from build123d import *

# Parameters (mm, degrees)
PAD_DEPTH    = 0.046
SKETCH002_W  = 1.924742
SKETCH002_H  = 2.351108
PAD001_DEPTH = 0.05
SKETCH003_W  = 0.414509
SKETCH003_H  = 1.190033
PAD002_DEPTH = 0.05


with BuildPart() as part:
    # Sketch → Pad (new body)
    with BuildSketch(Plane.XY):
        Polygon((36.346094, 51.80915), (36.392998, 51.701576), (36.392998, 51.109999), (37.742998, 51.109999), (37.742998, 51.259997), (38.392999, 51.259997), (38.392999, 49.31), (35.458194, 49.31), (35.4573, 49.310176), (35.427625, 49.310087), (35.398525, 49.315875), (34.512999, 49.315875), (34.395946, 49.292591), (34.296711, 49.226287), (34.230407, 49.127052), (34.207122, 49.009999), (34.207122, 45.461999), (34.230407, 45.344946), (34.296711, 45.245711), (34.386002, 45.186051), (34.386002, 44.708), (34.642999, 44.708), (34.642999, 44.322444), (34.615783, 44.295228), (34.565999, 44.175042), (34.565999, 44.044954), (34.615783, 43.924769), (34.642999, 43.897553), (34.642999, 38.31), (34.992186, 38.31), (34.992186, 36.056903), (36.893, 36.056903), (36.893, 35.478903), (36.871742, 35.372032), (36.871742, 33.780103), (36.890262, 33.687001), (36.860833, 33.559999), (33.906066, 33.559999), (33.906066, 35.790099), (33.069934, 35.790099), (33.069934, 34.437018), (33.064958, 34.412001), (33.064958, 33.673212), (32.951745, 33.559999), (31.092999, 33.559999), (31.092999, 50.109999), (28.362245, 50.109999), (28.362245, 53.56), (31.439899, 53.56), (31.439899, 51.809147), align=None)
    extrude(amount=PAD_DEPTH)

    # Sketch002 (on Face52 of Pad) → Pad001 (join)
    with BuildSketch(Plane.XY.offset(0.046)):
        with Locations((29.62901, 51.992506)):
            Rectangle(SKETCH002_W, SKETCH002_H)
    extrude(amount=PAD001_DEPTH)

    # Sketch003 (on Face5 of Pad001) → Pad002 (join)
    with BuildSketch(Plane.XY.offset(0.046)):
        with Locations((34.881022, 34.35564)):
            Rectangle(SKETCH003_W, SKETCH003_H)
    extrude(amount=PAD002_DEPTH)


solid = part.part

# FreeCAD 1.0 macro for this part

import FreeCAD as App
import Part
import Sketcher
Q = App.Units.Quantity

doc = App.newDocument("Part")
params = doc.addObject("Spreadsheet::Sheet", "Params")
for row, (alias, value) in enumerate([
    ("sketch1_width", "0.650001 mm"),
    ("sketch1_height", "3.450001 mm"),
    ("pad1_length", "0.046 mm"),
    ("pad2_length", "0.05 mm"),
    ("pad3_length", "0.05 mm"),
], start=1):
    params.set(f"A{row}", alias)
    params.set(f"B{row}", "=" + value)
    params.setAlias(f"B{row}", alias)

body = doc.addObject("PartDesign::Body", "Body")

# Sketch on XY plane
sketch1 = body.newObject("Sketcher::SketchObject", "Sketch")
sketch1.AttachmentSupport = (doc.getObject("XY_Plane"), [""])
sketch1.MapMode = "FlatFace"
sketch1.addGeometry(Part.LineSegment(App.Vector(36.392998, 51.701576, 0), App.Vector(36.346094, 51.80915, 0)), False)
sketch1.addGeometry(Part.LineSegment(App.Vector(36.346094, 51.80915, 0), App.Vector(31.439899, 51.809147, 0)), False)
sketch1.addGeometry(Part.LineSegment(App.Vector(31.439899, 51.809147, 0), App.Vector(31.439899, 53.56, 0)), False)
sketch1.addGeometry(Part.LineSegment(App.Vector(31.439899, 53.56, 0), App.Vector(28.362245, 53.56, 0)), False)
sketch1.addGeometry(Part.LineSegment(App.Vector(28.362245, 53.56, 0), App.Vector(28.362245, 50.109999, 0)), False)
sketch1.addGeometry(Part.LineSegment(App.Vector(28.362245, 50.109999, 0), App.Vector(31.092999, 50.109999, 0)), False)
sketch1.addGeometry(Part.LineSegment(App.Vector(31.092999, 50.109999, 0), App.Vector(31.092999, 33.559999, 0)), False)
sketch1.addGeometry(Part.LineSegment(App.Vector(31.092999, 33.559999, 0), App.Vector(32.951745, 33.559999, 0)), False)
sketch1.addGeometry(Part.LineSegment(App.Vector(32.951745, 33.559999, 0), App.Vector(33.064958, 33.673212, 0)), False)
sketch1.addGeometry(Part.LineSegment(App.Vector(33.064958, 33.673212, 0), App.Vector(33.064958, 34.412001, 0)), False)
sketch1.addGeometry(Part.LineSegment(App.Vector(33.064958, 34.412001, 0), App.Vector(33.069934, 34.437018, 0)), False)
sketch1.addGeometry(Part.LineSegment(App.Vector(33.069934, 34.437018, 0), App.Vector(33.069934, 35.790099, 0)), False)
sketch1.addGeometry(Part.LineSegment(App.Vector(33.069934, 35.790099, 0), App.Vector(33.906066, 35.790099, 0)), False)
sketch1.addGeometry(Part.LineSegment(App.Vector(33.906066, 35.790099, 0), App.Vector(33.906066, 33.559999, 0)), False)
sketch1.addGeometry(Part.LineSegment(App.Vector(33.906066, 33.559999, 0), App.Vector(36.860833, 33.559999, 0)), False)
sketch1.addGeometry(Part.LineSegment(App.Vector(36.860833, 33.559999, 0), App.Vector(36.890262, 33.687001, 0)), False)
sketch1.addGeometry(Part.LineSegment(App.Vector(36.890262, 33.687001, 0), App.Vector(36.871742, 33.780103, 0)), False)
sketch1.addGeometry(Part.LineSegment(App.Vector(36.871742, 33.780103, 0), App.Vector(36.871742, 35.372032, 0)), False)
sketch1.addGeometry(Part.LineSegment(App.Vector(36.871742, 35.372032, 0), App.Vector(36.893, 35.478903, 0)), False)
sketch1.addGeometry(Part.LineSegment(App.Vector(36.893, 35.478903, 0), App.Vector(36.893, 36.056903, 0)), False)
sketch1.addGeometry(Part.LineSegment(App.Vector(36.893, 36.056903, 0), App.Vector(34.992186, 36.056903, 0)), False)
sketch1.addGeometry(Part.LineSegment(App.Vector(34.992186, 36.056903, 0), App.Vector(34.992186, 38.31, 0)), False)
sketch1.addGeometry(Part.LineSegment(App.Vector(34.992186, 38.31, 0), App.Vector(34.642999, 38.31, 0)), False)
sketch1.addGeometry(Part.LineSegment(App.Vector(34.642999, 38.31, 0), App.Vector(34.642999, 43.897553, 0)), False)
sketch1.addGeometry(Part.LineSegment(App.Vector(34.642999, 43.897553, 0), App.Vector(34.615783, 43.924769, 0)), False)
sketch1.addGeometry(Part.LineSegment(App.Vector(34.615783, 43.924769, 0), App.Vector(34.565999, 44.044954, 0)), False)
sketch1.addGeometry(Part.LineSegment(App.Vector(34.565999, 44.044954, 0), App.Vector(34.565999, 44.175042, 0)), False)
sketch1.addGeometry(Part.LineSegment(App.Vector(34.565999, 44.175042, 0), App.Vector(34.615783, 44.295228, 0)), False)
sketch1.addGeometry(Part.LineSegment(App.Vector(34.615783, 44.295228, 0), App.Vector(34.642999, 44.322444, 0)), False)
sketch1.addGeometry(Part.LineSegment(App.Vector(34.642999, 44.322444, 0), App.Vector(34.642999, 44.708, 0)), False)
sketch1.addGeometry(Part.LineSegment(App.Vector(34.642999, 44.708, 0), App.Vector(34.386002, 44.708, 0)), False)
sketch1.addGeometry(Part.LineSegment(App.Vector(34.386002, 44.708, 0), App.Vector(34.386002, 45.186051, 0)), False)
sketch1.addGeometry(Part.LineSegment(App.Vector(34.386002, 45.186051, 0), App.Vector(34.296711, 45.245711, 0)), False)
sketch1.addGeometry(Part.LineSegment(App.Vector(34.296711, 45.245711, 0), App.Vector(34.230407, 45.344946, 0)), False)
sketch1.addGeometry(Part.LineSegment(App.Vector(34.230407, 45.344946, 0), App.Vector(34.207122, 45.461999, 0)), False)
sketch1.addGeometry(Part.LineSegment(App.Vector(34.207122, 45.461999, 0), App.Vector(34.207122, 49.009999, 0)), False)
sketch1.addGeometry(Part.LineSegment(App.Vector(34.207122, 49.009999, 0), App.Vector(34.230407, 49.127052, 0)), False)
sketch1.addGeometry(Part.LineSegment(App.Vector(34.230407, 49.127052, 0), App.Vector(34.296711, 49.226287, 0)), False)
sketch1.addGeometry(Part.LineSegment(App.Vector(34.296711, 49.226287, 0), App.Vector(34.395946, 49.292591, 0)), False)
sketch1.addGeometry(Part.LineSegment(App.Vector(34.395946, 49.292591, 0), App.Vector(34.512999, 49.315875, 0)), False)
sketch1.addGeometry(Part.LineSegment(App.Vector(34.512999, 49.315875, 0), App.Vector(35.398525, 49.315875, 0)), False)
sketch1.addGeometry(Part.LineSegment(App.Vector(35.398525, 49.315875, 0), App.Vector(35.427625, 49.310087, 0)), False)
sketch1.addGeometry(Part.LineSegment(App.Vector(35.427625, 49.310087, 0), App.Vector(35.4573, 49.310176, 0)), False)
sketch1.addGeometry(Part.LineSegment(App.Vector(35.4573, 49.310176, 0), App.Vector(35.458194, 49.31, 0)), False)
sketch1.addGeometry(Part.LineSegment(App.Vector(35.458194, 49.31, 0), App.Vector(38.392999, 49.31, 0)), False)
sketch1.addGeometry(Part.LineSegment(App.Vector(38.392999, 49.31, 0), App.Vector(38.392999, 51.259997, 0)), False)
sketch1.addGeometry(Part.LineSegment(App.Vector(38.392999, 51.259997, 0), App.Vector(37.742998, 51.259997, 0)), False)
sketch1.addGeometry(Part.LineSegment(App.Vector(37.742998, 51.259997, 0), App.Vector(37.742998, 51.109999, 0)), False)
sketch1.addGeometry(Part.LineSegment(App.Vector(37.742998, 51.109999, 0), App.Vector(36.392998, 51.109999, 0)), False)
sketch1.addGeometry(Part.LineSegment(App.Vector(36.392998, 51.109999, 0), App.Vector(36.392998, 51.701576, 0)), False)
sketch1.addConstraint(Sketcher.Constraint("Coincident", 0, 2, 1, 1))
sketch1.addConstraint(Sketcher.Constraint("Coincident", 1, 2, 2, 1))
sketch1.addConstraint(Sketcher.Constraint("Coincident", 2, 2, 3, 1))
sketch1.addConstraint(Sketcher.Constraint("Coincident", 3, 2, 4, 1))
sketch1.addConstraint(Sketcher.Constraint("Coincident", 4, 2, 5, 1))
sketch1.addConstraint(Sketcher.Constraint("Coincident", 5, 2, 6, 1))
sketch1.addConstraint(Sketcher.Constraint("Coincident", 6, 2, 7, 1))
sketch1.addConstraint(Sketcher.Constraint("Coincident", 7, 2, 8, 1))
sketch1.addConstraint(Sketcher.Constraint("Coincident", 8, 2, 9, 1))
sketch1.addConstraint(Sketcher.Constraint("Coincident", 9, 2, 10, 1))
sketch1.addConstraint(Sketcher.Constraint("Coincident", 10, 2, 11, 1))
sketch1.addConstraint(Sketcher.Constraint("Coincident", 11, 2, 12, 1))
sketch1.addConstraint(Sketcher.Constraint("Coincident", 12, 2, 13, 1))
sketch1.addConstraint(Sketcher.Constraint("Coincident", 13, 2, 14, 1))
sketch1.addConstraint(Sketcher.Constraint("Coincident", 14, 2, 15, 1))
sketch1.addConstraint(Sketcher.Constraint("Coincident", 15, 2, 16, 1))
sketch1.addConstraint(Sketcher.Constraint("Coincident", 16, 2, 17, 1))
sketch1.addConstraint(Sketcher.Constraint("Coincident", 17, 2, 18, 1))
sketch1.addConstraint(Sketcher.Constraint("Coincident", 18, 2, 19, 1))
sketch1.addConstraint(Sketcher.Constraint("Coincident", 19, 2, 20, 1))
sketch1.addConstraint(Sketcher.Constraint("Coincident", 20, 2, 21, 1))
sketch1.addConstraint(Sketcher.Constraint("Coincident", 21, 2, 22, 1))
sketch1.addConstraint(Sketcher.Constraint("Coincident", 22, 2, 23, 1))
sketch1.addConstraint(Sketcher.Constraint("Coincident", 23, 2, 24, 1))
sketch1.addConstraint(Sketcher.Constraint("Coincident", 24, 2, 25, 1))
sketch1.addConstraint(Sketcher.Constraint("Coincident", 25, 2, 26, 1))
sketch1.addConstraint(Sketcher.Constraint("Coincident", 26, 2, 27, 1))
sketch1.addConstraint(Sketcher.Constraint("Coincident", 27, 2, 28, 1))
sketch1.addConstraint(Sketcher.Constraint("Coincident", 28, 2, 29, 1))
sketch1.addConstraint(Sketcher.Constraint("Coincident", 29, 2, 30, 1))
sketch1.addConstraint(Sketcher.Constraint("Coincident", 30, 2, 31, 1))
sketch1.addConstraint(Sketcher.Constraint("Coincident", 31, 2, 32, 1))
sketch1.addConstraint(Sketcher.Constraint("Coincident", 32, 2, 33, 1))
sketch1.addConstraint(Sketcher.Constraint("Coincident", 33, 2, 34, 1))
sketch1.addConstraint(Sketcher.Constraint("Coincident", 34, 2, 35, 1))
sketch1.addConstraint(Sketcher.Constraint("Coincident", 35, 2, 36, 1))
sketch1.addConstraint(Sketcher.Constraint("Coincident", 36, 2, 37, 1))
sketch1.addConstraint(Sketcher.Constraint("Coincident", 37, 2, 38, 1))
sketch1.addConstraint(Sketcher.Constraint("Coincident", 38, 2, 39, 1))
sketch1.addConstraint(Sketcher.Constraint("Coincident", 39, 2, 40, 1))
sketch1.addConstraint(Sketcher.Constraint("Coincident", 40, 2, 41, 1))
sketch1.addConstraint(Sketcher.Constraint("Coincident", 41, 2, 42, 1))
sketch1.addConstraint(Sketcher.Constraint("Coincident", 42, 2, 43, 1))
sketch1.addConstraint(Sketcher.Constraint("Coincident", 43, 2, 44, 1))
sketch1.addConstraint(Sketcher.Constraint("Coincident", 44, 2, 45, 1))
sketch1.addConstraint(Sketcher.Constraint("Coincident", 45, 2, 46, 1))
sketch1.addConstraint(Sketcher.Constraint("Coincident", 46, 2, 47, 1))
sketch1.addConstraint(Sketcher.Constraint("Coincident", 47, 2, 48, 1))
sketch1.addConstraint(Sketcher.Constraint("Coincident", 48, 2, 49, 1))
sketch1.addConstraint(Sketcher.Constraint("Coincident", 49, 2, 0, 1))
sketch1.addConstraint(Sketcher.Constraint("Vertical", 2))
sketch1.addConstraint(Sketcher.Constraint("Horizontal", 3))
sketch1.addConstraint(Sketcher.Constraint("Vertical", 4))
sketch1.addConstraint(Sketcher.Constraint("Horizontal", 5))
sketch1.addConstraint(Sketcher.Constraint("Vertical", 6))
sketch1.addConstraint(Sketcher.Constraint("Horizontal", 7))
sketch1.addConstraint(Sketcher.Constraint("Vertical", 9))
sketch1.addConstraint(Sketcher.Constraint("Vertical", 11))
sketch1.addConstraint(Sketcher.Constraint("Horizontal", 12))
sketch1.addConstraint(Sketcher.Constraint("Vertical", 13))
sketch1.addConstraint(Sketcher.Constraint("Horizontal", 14))
sketch1.addConstraint(Sketcher.Constraint("Vertical", 17))
sketch1.addConstraint(Sketcher.Constraint("Vertical", 19))
sketch1.addConstraint(Sketcher.Constraint("Horizontal", 20))
sketch1.addConstraint(Sketcher.Constraint("Vertical", 21))
sketch1.addConstraint(Sketcher.Constraint("Horizontal", 22))
sketch1.addConstraint(Sketcher.Constraint("Vertical", 23))
sketch1.addConstraint(Sketcher.Constraint("Vertical", 26))
sketch1.addConstraint(Sketcher.Constraint("Vertical", 29))
sketch1.addConstraint(Sketcher.Constraint("Horizontal", 30))
sketch1.addConstraint(Sketcher.Constraint("Vertical", 31))
sketch1.addConstraint(Sketcher.Constraint("Vertical", 35))
sketch1.addConstraint(Sketcher.Constraint("Horizontal", 40))
sketch1.addConstraint(Sketcher.Constraint("Horizontal", 44))
sketch1.addConstraint(Sketcher.Constraint("Vertical", 45))
sketch1.addConstraint(Sketcher.Constraint("Horizontal", 46))
sketch1.addConstraint(Sketcher.Constraint("Vertical", 47))
sketch1.addConstraint(Sketcher.Constraint("Horizontal", 48))
sketch1.addConstraint(Sketcher.Constraint("Vertical", 49))
sketch1.addConstraint(Sketcher.Constraint("Perpendicular", 8, 24))
sketch1.addConstraint(Sketcher.Constraint("Perpendicular", 24, 28))
sketch1.addConstraint(Sketcher.Constraint("Perpendicular", 32, 37))
sketch1.addConstraint(Sketcher.Constraint("Perpendicular", 33, 38))
sketch1.addConstraint(Sketcher.Constraint("Horizontal", 7, 2, 13, 2))
sketch1.addConstraint(Sketcher.Constraint("Vertical", 24, 2, 27, 2))
sketch1.addConstraint(Sketcher.Constraint("Vertical", 23, 2, 28, 2))
sketch1.addConstraint(Sketcher.Constraint("Vertical", 33, 2, 36, 2))
sketch1.addConstraint(Sketcher.Constraint("Vertical", 32, 2, 37, 2))
sketch1.addConstraint(Sketcher.Constraint("Equal", 25, 27))
sketch1.addConstraint(Sketcher.Constraint("Equal", 24, 28))
sketch1.addConstraint(Sketcher.Constraint("Equal", 33, 34))
sketch1.addConstraint(Sketcher.Constraint("Equal", 34, 36))
sketch1.addConstraint(Sketcher.Constraint("Equal", 36, 37))
sketch1.addConstraint(Sketcher.Constraint("Equal", 37, 38))
sketch1.addConstraint(Sketcher.Constraint("Equal", 38, 39))
sketch1.addConstraint(Sketcher.Constraint("DistanceY", 6, 2, 2, 2, Q("20.000001 mm")))
sketch1.addConstraint(Sketcher.Constraint("DistanceX", 48, 2, 45, 2, Q("2.000001 mm")))
sketch1.addConstraint(Sketcher.Constraint("DistanceX", 46, 2, 46, 1, Q("0.650001 mm")))
sketch1.addConstraint(Sketcher.Constraint("DistanceY", 4, 2, 4, 1, Q("3.450001 mm")))
sketch1.addConstraint(Sketcher.Constraint("Angle", 18, Q("78.749981 deg")))
sketch1.addConstraint(Sketcher.Constraint("DistanceY", 35, 2, 5, 2, Q("1.1 mm")))
sketch1.addConstraint(Sketcher.Constraint("DistanceY", 44, 2, 47, 2, Q("1.799999 mm")))
sketch1.addConstraint(Sketcher.Constraint("DistanceY", 19, 1, 19, 2, Q("0.578 mm")))
sketch1.addConstraint(Sketcher.Constraint("DistanceY", 35, 1, 35, 2, Q("3.548 mm")))
sketch1.addConstraint(Sketcher.Constraint("DistanceY", -1, 1, 2, 2, Q("53.56 mm")))
sketch1.addConstraint(Sketcher.Constraint("DistanceY", -1, 1, 21, 2, Q("38.31 mm")))
sketch1.addConstraint(Sketcher.Constraint("DistanceY", -1, 1, 43, 2, Q("49.31 mm")))
sketch1.addConstraint(Sketcher.Constraint("DistanceX", 22, 2, 19, 2, Q("2.250001 mm")))
sketch1.addConstraint(Sketcher.Constraint("DistanceX", 5, 2, 23, 2, Q("3.55 mm")))
sketch1.addConstraint(Sketcher.Constraint("DistanceY", 13, 2, 13, 1, Q("2.2301 mm")))
sketch1.addConstraint(Sketcher.Constraint("DistanceX", -1, 1, 5, 2, Q("31.092999 mm")))
sketch1.addConstraint(Sketcher.Constraint("DistanceY", -1, 1, 9, 2, Q("34.412001 mm")))
sketch1.addConstraint(Sketcher.Constraint("DistanceY", -1, 1, 15, 2, Q("33.687001 mm")))
sketch1.addConstraint(Sketcher.Constraint("DistanceX", -1, 1, 25, 2, Q("34.565999 mm")))
sketch1.addConstraint(Sketcher.Constraint("DistanceY", -1, 1, 29, 2, Q("44.708 mm")))
sketch1.addConstraint(Sketcher.Constraint("DistanceX", -1, 1, 30, 2, Q("34.386002 mm")))
sketch1.addConstraint(Sketcher.Constraint("DistanceX", -1, 1, 39, 2, Q("34.512999 mm")))
sketch1.addConstraint(Sketcher.Constraint("DistanceX", -1, 1, 44, 2, Q("38.392999 mm")))
sketch1.addConstraint(Sketcher.Constraint("DistanceX", 12, 1, 12, 2, Q("0.836132 mm")))
sketch1.addConstraint(Sketcher.Constraint("DistanceY", 9, 1, 9, 2, Q("0.738789 mm")))
sketch1.addConstraint(Sketcher.Constraint("DistanceY", 11, 1, 11, 2, Q("1.353081 mm")))
sketch1.addConstraint(Sketcher.Constraint("DistanceY", 17, 1, 17, 2, Q("1.591929 mm")))
sketch1.addConstraint(Sketcher.Constraint("DistanceY", 26, 1, 26, 2, Q("0.130088 mm")))
sketch1.addConstraint(Sketcher.Constraint("DistanceY", 31, 1, 31, 2, Q("0.478051 mm")))
sketch1.addConstraint(Sketcher.Constraint("DistanceX", -1, 1, 1, 2, Q("31.439899 mm")))
sketch1.addConstraint(Sketcher.Constraint("DistanceX", -1, 1, 42, 2, Q("35.4573 mm")))
sketch1.addConstraint(Sketcher.Constraint("DistanceX", 4, 2, 7, 2, Q("4.5895 mm")))
sketch1.addConstraint(Sketcher.Constraint("DistanceX", 10, 2, 14, 2, Q("3.790899 mm")))
sketch1.addConstraint(Sketcher.Constraint("DistanceY", 15, 2, 16, 2, Q("0.093102 mm")))
sketch1.addConstraint(Sketcher.Constraint("DistanceY", 16, 2, 18, 2, Q("1.6988 mm")))
sketch1.addConstraint(Sketcher.Constraint("DistanceY", 23, 2, 25, 2, Q("0.147401 mm")))
sketch1.addConstraint(Sketcher.Constraint("DistanceY", 36, 2, 0, 2, Q("2.682098 mm")))
sketch1.addConstraint(Sketcher.Constraint("DistanceX", 40, 2, 41, 2, Q("0.0291 mm")))
sketch1.addConstraint(Sketcher.Constraint("DistanceY", 37, 2, 41, 2, Q("0.0838 mm")))
sketch1.addConstraint(Sketcher.Constraint("DistanceY", 42, 2, 40, 2, Q("0.005699 mm")))
sketch1.addConstraint(Sketcher.Constraint("Distance", 24, Q("0.038489 mm")))
sketch1.addConstraint(Sketcher.Constraint("Distance", 32, Q("0.107388 mm")))
sketch1.addConstraint(Sketcher.Constraint("Distance", 41, Q("0.02967 mm")))
sketch1.addConstraint(Sketcher.Constraint("Distance", 43, Q("0.000911 mm")))
sketch1.addConstraint(Sketcher.Constraint("DistanceX", 3, 2, 3, 1, Q("3.077654 mm")))
sketch1.addConstraint(Sketcher.Constraint("DistanceX", 20, 2, 20, 1, Q("1.900814 mm")))
sketch1.addConstraint(Sketcher.Constraint("DistanceX", 40, 1, 40, 2, Q("0.885526 mm")))
sketch1.addConstraint(Sketcher.Constraint("DistanceX", 44, 1, 44, 2, Q("2.934805 mm")))
sketch1.addConstraint(Sketcher.Constraint("DistanceY", 2, 1, 2, 2, Q("1.750853 mm")))
sketch1.addConstraint(Sketcher.Constraint("DistanceY", 23, 1, 23, 2, Q("5.587553 mm")))
sketch1.addConstraint(Sketcher.Constraint("DistanceY", 45, 1, 45, 2, Q("1.949997 mm")))
sketch1.addConstraint(Sketcher.Constraint("DistanceY", 49, 1, 49, 2, Q("0.591577 mm")))
sketch1.addConstraint(Sketcher.Constraint("DistanceX", 3, 2, 0, 2, Q("7.983849 mm")))
sketch1.addConstraint(Sketcher.Constraint("DistanceX", 7, 2, 10, 2, Q("0.118189 mm")))
sketch1.addConstraint(Sketcher.Constraint("DistanceX", 14, 2, 15, 2, Q("0.029429 mm")))
sketch1.setExpression("Constraints[97]", "Params.sketch1_width")
sketch1.setExpression("Constraints[98]", "Params.sketch1_height")
pad1 = body.newObject("PartDesign::Pad", "Pad")
pad1.Profile = sketch1
pad1.setExpression("Length", "Params.pad1_length")

# Sketch on XY plane
sketch2 = body.newObject("Sketcher::SketchObject", "Sketch001")
sketch2.AttachmentSupport = (doc.getObject("XY_Plane"), [""])
sketch2.MapMode = "FlatFace"
sketch2.AttachmentOffset = App.Placement(App.Vector(0, 0, 0.046), App.Rotation())
sketch2.addGeometry(Part.LineSegment(App.Vector(28.7, 53.2, 0), App.Vector(28.7, 50.8, 0)), False)
sketch2.addGeometry(Part.LineSegment(App.Vector(28.7, 50.8, 0), App.Vector(30.6, 50.8, 0)), False)
sketch2.addGeometry(Part.LineSegment(App.Vector(30.6, 50.8, 0), App.Vector(30.6, 53.2, 0)), False)
sketch2.addGeometry(Part.LineSegment(App.Vector(30.6, 53.2, 0), App.Vector(28.7, 53.2, 0)), False)
sketch2.addConstraint(Sketcher.Constraint("Coincident", 0, 2, 1, 1))
sketch2.addConstraint(Sketcher.Constraint("Coincident", 1, 2, 2, 1))
sketch2.addConstraint(Sketcher.Constraint("Coincident", 2, 2, 3, 1))
sketch2.addConstraint(Sketcher.Constraint("Coincident", 3, 2, 0, 1))
sketch2.addConstraint(Sketcher.Constraint("Vertical", 0))
sketch2.addConstraint(Sketcher.Constraint("Horizontal", 1))
sketch2.addConstraint(Sketcher.Constraint("Vertical", 2))
sketch2.addConstraint(Sketcher.Constraint("Horizontal", 3))
sketch2.addConstraint(Sketcher.Constraint("DistanceX", 1, 1, 1, 2, Q("1.924742 mm")))
sketch2.addConstraint(Sketcher.Constraint("DistanceY", 0, 2, 0, 1, Q("2.351108 mm")))
sketch2.addConstraint(Sketcher.Constraint("DistanceX", -1, 1, 0, 2, Q("28.666639 mm")))
sketch2.addConstraint(Sketcher.Constraint("DistanceY", -1, 1, 2, 2, Q("53.16806 mm")))
pad2 = body.newObject("PartDesign::Pad", "Pad001")
pad2.Profile = sketch2
pad2.setExpression("Length", "Params.pad2_length")

# Sketch on XY plane
sketch3 = body.newObject("Sketcher::SketchObject", "Sketch002")
sketch3.AttachmentSupport = (doc.getObject("XY_Plane"), [""])
sketch3.MapMode = "FlatFace"
sketch3.AttachmentOffset = App.Placement(App.Vector(0, 0, 0.046), App.Rotation())
sketch3.addGeometry(Part.LineSegment(App.Vector(34.67, 34.95, 0), App.Vector(34.67, 33.76, 0)), False)
sketch3.addGeometry(Part.LineSegment(App.Vector(34.67, 33.76, 0), App.Vector(35.09, 33.76, 0)), False)
sketch3.addGeometry(Part.LineSegment(App.Vector(35.09, 33.76, 0), App.Vector(35.09, 34.95, 0)), False)
sketch3.addGeometry(Part.LineSegment(App.Vector(35.09, 34.95, 0), App.Vector(34.67, 34.95, 0)), False)
sketch3.addConstraint(Sketcher.Constraint("Coincident", 0, 2, 1, 1))
sketch3.addConstraint(Sketcher.Constraint("Coincident", 1, 2, 2, 1))
sketch3.addConstraint(Sketcher.Constraint("Coincident", 2, 2, 3, 1))
sketch3.addConstraint(Sketcher.Constraint("Coincident", 3, 2, 0, 1))
sketch3.addConstraint(Sketcher.Constraint("Vertical", 0))
sketch3.addConstraint(Sketcher.Constraint("Horizontal", 1))
sketch3.addConstraint(Sketcher.Constraint("Vertical", 2))
sketch3.addConstraint(Sketcher.Constraint("Horizontal", 3))
sketch3.addConstraint(Sketcher.Constraint("DistanceX", 1, 1, 1, 2, Q("0.414509 mm")))
sketch3.addConstraint(Sketcher.Constraint("DistanceY", 0, 2, 0, 1, Q("1.190033 mm")))
sketch3.addConstraint(Sketcher.Constraint("DistanceX", -1, 1, 0, 2, Q("34.673767 mm")))
sketch3.addConstraint(Sketcher.Constraint("DistanceY", -1, 1, 0, 2, Q("33.760624 mm")))
pad3 = body.newObject("PartDesign::Pad", "Pad002")
pad3.Profile = sketch3
pad3.setExpression("Length", "Params.pad3_length")

doc.recompute()
